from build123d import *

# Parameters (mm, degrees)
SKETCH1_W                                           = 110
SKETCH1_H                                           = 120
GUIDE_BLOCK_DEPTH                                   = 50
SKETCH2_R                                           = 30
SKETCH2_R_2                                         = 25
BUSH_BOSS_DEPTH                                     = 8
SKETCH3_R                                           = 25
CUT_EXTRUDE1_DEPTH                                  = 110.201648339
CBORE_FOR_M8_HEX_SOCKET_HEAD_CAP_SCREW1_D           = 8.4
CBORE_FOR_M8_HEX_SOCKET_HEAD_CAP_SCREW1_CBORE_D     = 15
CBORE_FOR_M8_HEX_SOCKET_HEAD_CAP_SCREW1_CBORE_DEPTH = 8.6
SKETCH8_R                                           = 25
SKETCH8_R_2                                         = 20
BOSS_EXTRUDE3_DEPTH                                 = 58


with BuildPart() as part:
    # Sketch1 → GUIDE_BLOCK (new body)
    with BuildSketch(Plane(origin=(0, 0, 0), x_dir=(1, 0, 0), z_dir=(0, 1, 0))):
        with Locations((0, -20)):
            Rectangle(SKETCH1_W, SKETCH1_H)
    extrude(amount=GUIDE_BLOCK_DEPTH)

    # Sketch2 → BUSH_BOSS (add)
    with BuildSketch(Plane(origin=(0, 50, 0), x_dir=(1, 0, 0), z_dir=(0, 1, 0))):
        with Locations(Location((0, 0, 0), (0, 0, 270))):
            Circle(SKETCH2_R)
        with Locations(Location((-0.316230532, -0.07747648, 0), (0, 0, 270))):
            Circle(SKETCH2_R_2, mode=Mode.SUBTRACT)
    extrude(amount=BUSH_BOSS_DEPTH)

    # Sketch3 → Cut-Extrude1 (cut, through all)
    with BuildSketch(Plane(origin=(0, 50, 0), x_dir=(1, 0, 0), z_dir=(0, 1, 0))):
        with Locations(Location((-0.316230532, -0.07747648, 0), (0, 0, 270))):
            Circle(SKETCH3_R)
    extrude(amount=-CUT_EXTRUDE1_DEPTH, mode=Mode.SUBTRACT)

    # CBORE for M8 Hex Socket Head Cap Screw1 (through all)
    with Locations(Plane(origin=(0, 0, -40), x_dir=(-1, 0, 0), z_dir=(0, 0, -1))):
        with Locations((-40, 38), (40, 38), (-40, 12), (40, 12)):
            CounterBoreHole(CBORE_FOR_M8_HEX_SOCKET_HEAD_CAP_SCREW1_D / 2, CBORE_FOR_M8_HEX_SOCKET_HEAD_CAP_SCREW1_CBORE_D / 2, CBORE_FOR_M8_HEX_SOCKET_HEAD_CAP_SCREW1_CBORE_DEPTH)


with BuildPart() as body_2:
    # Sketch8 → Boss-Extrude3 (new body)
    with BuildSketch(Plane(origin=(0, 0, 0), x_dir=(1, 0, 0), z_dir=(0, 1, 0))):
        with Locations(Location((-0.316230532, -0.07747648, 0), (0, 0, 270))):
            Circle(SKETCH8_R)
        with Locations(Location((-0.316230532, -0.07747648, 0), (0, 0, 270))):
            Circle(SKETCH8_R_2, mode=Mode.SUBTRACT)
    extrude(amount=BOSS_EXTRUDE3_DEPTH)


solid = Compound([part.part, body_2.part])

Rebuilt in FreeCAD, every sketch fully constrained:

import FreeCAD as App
import Part
import Sketcher
from FreeCAD import Vector
Q = App.Units.Quantity

doc = App.newDocument("Part")
params = doc.addObject("Spreadsheet::Sheet", "Params")
for row, (alias, value) in enumerate([
    ("sketch1_width", "110 mm"),
    ("sketch1_height", "120 mm"),
    ("pad1_length", "50 mm"),
    ("sketch2_diameter", "60 mm"),
    ("sketch2_diameter2", "50 mm"),
    ("pad2_length", "8 mm"),
    ("sketch3_diameter", "50 mm"),
    ("sketch4_diameter", "8.4 mm"),
    ("hole_diameter", "8.4 mm"),
    ("hole_cbore_diameter", "15 mm"),
    ("hole_cbore_depth", "8.6 mm"),
    ("sketch5_diameter", "50 mm"),
    ("sketch5_diameter2", "40 mm"),
    ("pad3_length", "58 mm"),
], start=1):
    params.set(f"A{row}", alias)
    params.set(f"B{row}", "=" + value)
    params.setAlias(f"B{row}", alias)

body = doc.addObject("PartDesign::Body", "Body")

# Sketch on XZ plane
sketch1 = body.newObject("Sketcher::SketchObject", "Sketch")
sketch1.AttachmentSupport = (doc.getObject("XZ_Plane"), [""])
sketch1.MapMode = "FlatFace"
sketch1.addGeometry([
    Part.LineSegment(Vector(-55, -40, 0), Vector(-55, 80, 0)),
    Part.LineSegment(Vector(-55, 80, 0), Vector(55, 80, 0)),
    Part.LineSegment(Vector(55, 80, 0), Vector(55, -40, 0)),
    Part.LineSegment(Vector(55, -40, 0), Vector(-55, -40, 0)),
], False)
sketch1.addConstraint([
    Sketcher.Constraint("Coincident", 0, 2, 1, 1),
    Sketcher.Constraint("Coincident", 1, 2, 2, 1),
    Sketcher.Constraint("Coincident", 2, 2, 3, 1),
    Sketcher.Constraint("Coincident", 3, 2, 0, 1),
    Sketcher.Constraint("Vertical", 0),
    Sketcher.Constraint("Horizontal", 1),
    Sketcher.Constraint("Vertical", 2),
    Sketcher.Constraint("Horizontal", 3),
    Sketcher.Constraint("DistanceX", 1, 1, 1, 2, Q("110 mm")),
    Sketcher.Constraint("DistanceY", 0, 1, 0, 2, Q("120 mm")),
    Sketcher.Constraint("DistanceX", 0, 2, -1, 1, Q("55 mm")),
    Sketcher.Constraint("DistanceY", -1, 1, 0, 2, Q("80 mm")),
])
sketch1.setExpression("Constraints[8]", "Params.sketch1_width")
sketch1.setExpression("Constraints[9]", "Params.sketch1_height")
pad1 = body.newObject("PartDesign::Pad", "Pad")
pad1.Profile = sketch1
pad1.setExpression("Length", "Params.pad1_length")
pad1.Reversed = True

# Sketch on XZ plane
sketch2 = body.newObject("Sketcher::SketchObject", "Sketch001")
sketch2.AttachmentSupport = (doc.getObject("XZ_Plane"), [""])
sketch2.MapMode = "FlatFace"
sketch2.AttachmentOffset = App.Placement(Vector(0, 0, -50), App.Rotation())
sketch2.addGeometry([
    Part.Circle(Vector(0, 0, 0), Vector(0, 0, 1), 30),
    Part.Circle(Vector(-0.316231, 0.077476, 0), Vector(0, 0, 1), 25),
], False)
sketch2.addConstraint([
    Sketcher.Constraint("Coincident", 0, 3, -1, 1),
    Sketcher.Constraint("Diameter", 0, Q("60 mm")),
    Sketcher.Constraint("Diameter", 1, Q("50 mm")),
    Sketcher.Constraint("DistanceX", 1, 3, -1, 1, Q("0.316231 mm")),
    Sketcher.Constraint("DistanceY", -1, 1, 1, 3, Q("0.077476 mm")),
])
sketch2.setExpression("Constraints[1]", "Params.sketch2_diameter")
sketch2.setExpression("Constraints[2]", "Params.sketch2_diameter2")
pad2 = body.newObject("PartDesign::Pad", "Pad001")
pad2.Profile = sketch2
pad2.setExpression("Length", "Params.pad2_length")
pad2.Reversed = True

# Sketch on XZ plane
sketch3 = body.newObject("Sketcher::SketchObject", "Sketch002")
sketch3.AttachmentSupport = (doc.getObject("XZ_Plane"), [""])
sketch3.MapMode = "FlatFace"
sketch3.AttachmentOffset = App.Placement(Vector(0, 0, -50), App.Rotation())
sketch3.addGeometry(Part.Circle(Vector(-0.316231, 0.077476, 0), Vector(0, 0, 1), 25), False)
sketch3.addConstraint([
    Sketcher.Constraint("Diameter", 0, Q("50 mm")),
    Sketcher.Constraint("DistanceX", 0, 3, -1, 1, Q("0.316231 mm")),
    Sketcher.Constraint("DistanceY", -1, 1, 0, 3, Q("0.077476 mm")),
])
sketch3.setExpression("Constraints[0]", "Params.sketch3_diameter")
pocket1 = body.newObject("PartDesign::Pocket", "Pocket")
pocket1.Profile = sketch3
pocket1.Type = "ThroughAll"
pocket1.Reversed = True

# Sketch on XY plane
sketch4 = body.newObject("Sketcher::SketchObject", "Sketch003")
sketch4.AttachmentSupport = (doc.getObject("XY_Plane"), [""])
sketch4.MapMode = "FlatFace"
sketch4.AttachmentOffset = App.Placement(Vector(0, 0, -40), App.Rotation())
sketch4.addGeometry([
    Part.Circle(Vector(40, 38, 0), Vector(0, 0, 1), 4.2),
    Part.Circle(Vector(-40, 38, 0), Vector(0, 0, 1), 4.2),
    Part.Circle(Vector(40, 12, 0), Vector(0, 0, 1), 4.2),
    Part.Circle(Vector(-40, 12, 0), Vector(0, 0, 1), 4.2),
], False)
sketch4.addConstraint([
    Sketcher.Constraint("Equal", 0, 1),
    Sketcher.Constraint("Equal", 1, 2),
    Sketcher.Constraint("Equal", 2, 3),
    Sketcher.Constraint("Symmetric", 0, 3, 1, 3, -2),
    Sketcher.Constraint("Symmetric", 2, 3, 3, 3, -2),
    Sketcher.Constraint("Vertical", 0, 3, 2, 3),
    Sketcher.Constraint("Diameter", 0, Q("8.4 mm")),
    Sketcher.Constraint("DistanceX", -1, 1, 0, 3, Q("40 mm")),
    Sketcher.Constraint("DistanceY", -1, 1, 0, 3, Q("38 mm")),
    Sketcher.Constraint("DistanceY", -1, 1, 2, 3, Q("12 mm")),
])
sketch4.setExpression("Constraints[6]", "Params.sketch4_diameter")
doc.recompute()
hole = body.newObject("PartDesign::Hole", "Hole")
hole.Profile = sketch4
hole.ThreadType = "None"
hole.setExpression("Diameter", "Params.hole_diameter")
hole.DepthType = "ThroughAll"
hole.HoleCutType = "Counterbore"
hole.setExpression("HoleCutDiameter", "Params.hole_cbore_diameter")
hole.setExpression("HoleCutDepth", "Params.hole_cbore_depth")
hole.Reversed = True
body2 = doc.addObject("PartDesign::Body", "Body001")

# Sketch on XZ plane
sketch5 = body2.newObject("Sketcher::SketchObject", "Sketch004")
sketch5.AttachmentSupport = (doc.getObject("XZ_Plane001"), [""])
sketch5.MapMode = "FlatFace"
sketch5.addGeometry([
    Part.Circle(Vector(-0.316231, 0.077476, 0), Vector(0, 0, 1), 25),
    Part.Circle(Vector(-0.316231, 0.077476, 0), Vector(0, 0, 1), 20),
], False)
sketch5.addConstraint([
    Sketcher.Constraint("Coincident", 1, 3, 0, 3),
    Sketcher.Constraint("Diameter", 0, Q("50 mm")),
    Sketcher.Constraint("Diameter", 1, Q("40 mm")),
    Sketcher.Constraint("DistanceX", 0, 3, -1, 1, Q("0.316231 mm")),
    Sketcher.Constraint("DistanceY", -1, 1, 0, 3, Q("0.077476 mm")),
])
sketch5.setExpression("Constraints[1]", "Params.sketch5_diameter")
sketch5.setExpression("Constraints[2]", "Params.sketch5_diameter2")
pad3 = body2.newObject("PartDesign::Pad", "Pad002")
pad3.Profile = sketch5
pad3.setExpression("Length", "Params.pad3_length")
pad3.Reversed = True

doc.recompute()
